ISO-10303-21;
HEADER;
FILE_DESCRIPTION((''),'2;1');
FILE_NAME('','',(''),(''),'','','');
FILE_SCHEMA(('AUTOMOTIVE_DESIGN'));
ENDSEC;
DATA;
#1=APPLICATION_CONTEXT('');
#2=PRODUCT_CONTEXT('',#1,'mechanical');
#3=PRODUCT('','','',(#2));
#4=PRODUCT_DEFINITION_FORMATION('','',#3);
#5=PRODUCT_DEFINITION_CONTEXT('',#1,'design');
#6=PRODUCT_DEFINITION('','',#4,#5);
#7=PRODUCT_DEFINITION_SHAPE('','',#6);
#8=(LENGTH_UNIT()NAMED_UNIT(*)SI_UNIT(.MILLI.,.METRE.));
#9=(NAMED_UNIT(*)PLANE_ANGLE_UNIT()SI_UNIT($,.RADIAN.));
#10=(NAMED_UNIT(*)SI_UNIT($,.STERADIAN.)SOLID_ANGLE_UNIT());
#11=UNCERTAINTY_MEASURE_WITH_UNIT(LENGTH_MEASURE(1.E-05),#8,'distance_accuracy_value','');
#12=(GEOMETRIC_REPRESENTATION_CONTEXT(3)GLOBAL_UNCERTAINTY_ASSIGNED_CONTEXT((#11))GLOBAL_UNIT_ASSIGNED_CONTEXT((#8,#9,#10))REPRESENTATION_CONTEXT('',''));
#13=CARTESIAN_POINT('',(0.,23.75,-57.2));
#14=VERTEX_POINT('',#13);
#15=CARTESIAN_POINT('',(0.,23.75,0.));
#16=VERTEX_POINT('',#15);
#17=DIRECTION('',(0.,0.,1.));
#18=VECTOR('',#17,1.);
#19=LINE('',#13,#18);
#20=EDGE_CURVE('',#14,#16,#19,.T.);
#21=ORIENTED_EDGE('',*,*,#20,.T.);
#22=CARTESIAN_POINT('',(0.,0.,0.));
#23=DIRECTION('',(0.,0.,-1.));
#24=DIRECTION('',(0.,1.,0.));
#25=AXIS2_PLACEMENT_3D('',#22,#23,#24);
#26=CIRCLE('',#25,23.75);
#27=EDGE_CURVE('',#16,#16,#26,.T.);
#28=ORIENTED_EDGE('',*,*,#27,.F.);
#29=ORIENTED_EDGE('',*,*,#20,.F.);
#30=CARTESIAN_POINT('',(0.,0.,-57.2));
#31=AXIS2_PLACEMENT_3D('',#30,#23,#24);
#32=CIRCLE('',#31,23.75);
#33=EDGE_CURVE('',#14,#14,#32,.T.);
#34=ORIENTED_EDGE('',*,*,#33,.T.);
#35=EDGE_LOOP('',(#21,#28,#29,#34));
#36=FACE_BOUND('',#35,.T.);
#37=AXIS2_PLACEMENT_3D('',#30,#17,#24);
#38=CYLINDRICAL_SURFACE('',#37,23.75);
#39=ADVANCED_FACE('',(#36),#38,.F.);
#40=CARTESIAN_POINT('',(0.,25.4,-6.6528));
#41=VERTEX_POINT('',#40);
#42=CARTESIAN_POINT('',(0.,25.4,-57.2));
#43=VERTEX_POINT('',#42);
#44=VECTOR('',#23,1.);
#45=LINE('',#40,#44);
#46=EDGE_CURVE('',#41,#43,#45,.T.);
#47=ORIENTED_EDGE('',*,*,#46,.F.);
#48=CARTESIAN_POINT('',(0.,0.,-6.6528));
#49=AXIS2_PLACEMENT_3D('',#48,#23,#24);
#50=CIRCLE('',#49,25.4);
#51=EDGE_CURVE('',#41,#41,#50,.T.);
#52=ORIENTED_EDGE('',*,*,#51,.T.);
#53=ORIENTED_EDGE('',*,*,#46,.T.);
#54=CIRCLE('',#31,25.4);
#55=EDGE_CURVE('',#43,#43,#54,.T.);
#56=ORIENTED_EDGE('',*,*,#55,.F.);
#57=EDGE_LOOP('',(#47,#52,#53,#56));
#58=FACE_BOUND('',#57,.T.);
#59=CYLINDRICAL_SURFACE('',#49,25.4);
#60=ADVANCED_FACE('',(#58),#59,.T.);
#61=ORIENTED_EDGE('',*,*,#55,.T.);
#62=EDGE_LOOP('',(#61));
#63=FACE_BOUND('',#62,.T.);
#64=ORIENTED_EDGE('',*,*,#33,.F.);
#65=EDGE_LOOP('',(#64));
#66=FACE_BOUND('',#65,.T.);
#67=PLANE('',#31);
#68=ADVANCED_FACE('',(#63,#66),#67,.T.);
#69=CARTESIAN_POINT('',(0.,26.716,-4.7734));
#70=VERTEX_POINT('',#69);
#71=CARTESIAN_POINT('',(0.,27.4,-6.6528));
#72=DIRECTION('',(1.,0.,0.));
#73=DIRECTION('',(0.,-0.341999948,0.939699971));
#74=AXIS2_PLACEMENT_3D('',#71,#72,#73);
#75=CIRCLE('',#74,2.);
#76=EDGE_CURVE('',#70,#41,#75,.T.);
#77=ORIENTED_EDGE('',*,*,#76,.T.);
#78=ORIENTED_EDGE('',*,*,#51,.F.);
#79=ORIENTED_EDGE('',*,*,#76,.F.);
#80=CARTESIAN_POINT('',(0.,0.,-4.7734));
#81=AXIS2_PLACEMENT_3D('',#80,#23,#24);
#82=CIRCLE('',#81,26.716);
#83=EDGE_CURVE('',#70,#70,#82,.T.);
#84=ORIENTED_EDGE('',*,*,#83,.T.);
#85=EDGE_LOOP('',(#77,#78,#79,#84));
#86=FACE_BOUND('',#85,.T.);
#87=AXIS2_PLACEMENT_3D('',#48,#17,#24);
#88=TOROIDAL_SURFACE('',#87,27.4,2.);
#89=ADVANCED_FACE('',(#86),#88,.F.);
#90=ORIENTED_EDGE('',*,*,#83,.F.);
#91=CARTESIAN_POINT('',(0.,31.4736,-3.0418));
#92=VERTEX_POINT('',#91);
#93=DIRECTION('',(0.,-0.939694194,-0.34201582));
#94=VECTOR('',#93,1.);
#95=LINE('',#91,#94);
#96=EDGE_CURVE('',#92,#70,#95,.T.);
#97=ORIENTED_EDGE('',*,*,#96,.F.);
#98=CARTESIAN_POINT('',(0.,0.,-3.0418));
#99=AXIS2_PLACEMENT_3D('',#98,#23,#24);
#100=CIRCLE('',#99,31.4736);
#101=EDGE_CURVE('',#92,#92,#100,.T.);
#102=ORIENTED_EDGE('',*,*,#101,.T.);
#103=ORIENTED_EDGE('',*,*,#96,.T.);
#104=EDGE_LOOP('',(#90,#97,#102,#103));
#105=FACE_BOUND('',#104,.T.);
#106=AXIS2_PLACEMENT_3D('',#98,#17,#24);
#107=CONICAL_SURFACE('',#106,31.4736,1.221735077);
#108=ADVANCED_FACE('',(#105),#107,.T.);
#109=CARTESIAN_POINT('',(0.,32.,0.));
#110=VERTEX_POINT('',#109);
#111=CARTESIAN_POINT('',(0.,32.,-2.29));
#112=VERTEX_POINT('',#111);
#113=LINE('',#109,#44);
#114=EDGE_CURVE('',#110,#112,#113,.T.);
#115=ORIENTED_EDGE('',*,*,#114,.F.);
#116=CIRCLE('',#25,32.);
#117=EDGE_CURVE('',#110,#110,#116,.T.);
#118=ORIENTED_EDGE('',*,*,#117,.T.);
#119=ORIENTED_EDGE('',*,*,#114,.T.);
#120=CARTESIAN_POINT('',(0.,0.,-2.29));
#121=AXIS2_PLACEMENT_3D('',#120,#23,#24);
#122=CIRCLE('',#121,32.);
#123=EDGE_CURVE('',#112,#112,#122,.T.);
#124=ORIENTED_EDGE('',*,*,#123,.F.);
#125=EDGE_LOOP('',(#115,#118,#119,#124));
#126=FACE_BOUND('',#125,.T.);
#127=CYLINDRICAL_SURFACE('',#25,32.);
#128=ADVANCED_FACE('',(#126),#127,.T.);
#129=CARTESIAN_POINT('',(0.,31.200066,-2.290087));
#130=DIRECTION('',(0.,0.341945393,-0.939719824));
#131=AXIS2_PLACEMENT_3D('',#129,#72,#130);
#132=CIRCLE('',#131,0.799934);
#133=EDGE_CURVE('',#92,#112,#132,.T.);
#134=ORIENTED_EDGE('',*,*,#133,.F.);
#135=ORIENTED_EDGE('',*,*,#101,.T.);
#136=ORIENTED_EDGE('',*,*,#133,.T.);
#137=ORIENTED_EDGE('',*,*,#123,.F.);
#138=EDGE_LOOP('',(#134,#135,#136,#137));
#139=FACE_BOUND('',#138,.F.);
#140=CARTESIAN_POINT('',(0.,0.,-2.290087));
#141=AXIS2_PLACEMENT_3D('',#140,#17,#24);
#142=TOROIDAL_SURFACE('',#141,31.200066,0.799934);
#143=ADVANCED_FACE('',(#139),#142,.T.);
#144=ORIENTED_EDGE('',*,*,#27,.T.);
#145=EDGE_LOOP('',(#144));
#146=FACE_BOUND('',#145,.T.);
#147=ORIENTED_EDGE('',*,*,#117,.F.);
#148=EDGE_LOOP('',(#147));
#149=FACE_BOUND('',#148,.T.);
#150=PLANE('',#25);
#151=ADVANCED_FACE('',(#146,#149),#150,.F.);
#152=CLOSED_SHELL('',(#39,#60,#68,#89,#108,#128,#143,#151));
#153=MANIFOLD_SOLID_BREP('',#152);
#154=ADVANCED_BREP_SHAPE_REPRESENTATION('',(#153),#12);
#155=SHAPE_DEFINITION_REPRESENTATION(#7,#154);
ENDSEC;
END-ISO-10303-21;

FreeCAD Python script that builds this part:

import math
import FreeCAD as App
import Part
import Sketcher
from FreeCAD import Vector
Q = App.Units.Quantity

doc = App.newDocument("Part")
params = doc.addObject("Spreadsheet::Sheet", "Params")
for row, (alias, value) in enumerate([
    ("sketch1_radius", "2 mm"),
    ("sketch1_radius2", "0.8 mm"),
    ("sketch1_height", "57.2 mm"),
    ("sketch1_width", "1.65 mm"),
    ("sketch1_height2", "2.29 mm"),
    ("revolution_angle", "360 deg"),
], start=1):
    params.set(f"A{row}", alias)
    params.set(f"B{row}", "=" + value)
    params.setAlias(f"B{row}", alias)

body = doc.addObject("PartDesign::Body", "Body")

sketch1 = body.newObject("Sketcher::SketchObject", "Sketch")
sketch1.AttachmentSupport = (doc.getObject("YZ_Plane"), [""])
sketch1.MapMode = "FlatFace"
sketch1.addGeometry([
    Part.LineSegment(Vector(23.8, 0, 0), Vector(23.8, -57.2, 0)),
    Part.LineSegment(Vector(23.8, -57.2, 0), Vector(25.4, -57.2, 0)),
    Part.LineSegment(Vector(25.4, -57.2, 0), Vector(25.4, -6.7, 0)),
    Part.ArcOfCircle(Part.Circle(Vector(27.4, -6.7, 0), Vector(0, 0, 1), 2), math.radians(110), math.radians(180)),
    Part.LineSegment(Vector(26.7, -4.8, 0), Vector(31.5, -3, 0)),
    Part.ArcOfCircle(Part.Circle(Vector(31.2, -2.3, 0), Vector(0, 0, 1), 0.8), math.radians(-70), math.radians(0)),
    Part.LineSegment(Vector(32, -2.3, 0), Vector(32, 0, 0)),
    Part.LineSegment(Vector(32, 0, 0), Vector(23.8, 0, 0)),
], False)
sketch1.addConstraint([
    Sketcher.Constraint("Coincident", 0, 2, 1, 1),
    Sketcher.Constraint("Coincident", 1, 2, 2, 1),
    Sketcher.Constraint("Tangent", 2, 2, 3, 2),
    Sketcher.Constraint("Tangent", 3, 1, 4, 1),
    Sketcher.Constraint("Tangent", 4, 2, 5, 1),
    Sketcher.Constraint("Tangent", 5, 2, 6, 1),
    Sketcher.Constraint("Coincident", 6, 2, 7, 1),
    Sketcher.Constraint("Coincident", 7, 2, 0, 1),
    Sketcher.Constraint("Vertical", 0),
    Sketcher.Constraint("Horizontal", 1),
    Sketcher.Constraint("Vertical", 2),
    Sketcher.Constraint("Vertical", 6),
    Sketcher.Constraint("Horizontal", 7),
    Sketcher.Constraint("PointOnObject", 6, 2, -1),
    Sketcher.Constraint("Radius", 3, Q("2 mm")),
    Sketcher.Constraint("Radius", 5, Q("0.8 mm")),
    Sketcher.Constraint("Angle", 4, Q("19.9997 deg")),
    Sketcher.Constraint("DistanceY", 0, 2, 0, 1, Q("57.2 mm")),
    Sketcher.Constraint("DistanceX", 1, 1, 1, 2, Q("1.65 mm")),
    Sketcher.Constraint("DistanceY", 6, 1, 6, 2, Q("2.29 mm")),
    Sketcher.Constraint("DistanceX", -1, 1, 5, 2, Q("32 mm")),
    Sketcher.Constraint("DistanceX", 7, 2, 7, 1, Q("8.25 mm")),
])
sketch1.setExpression("Constraints[14]", "Params.sketch1_radius")
sketch1.setExpression("Constraints[15]", "Params.sketch1_radius2")
sketch1.setExpression("Constraints[17]", "Params.sketch1_height")
sketch1.setExpression("Constraints[18]", "Params.sketch1_width")
sketch1.setExpression("Constraints[19]", "Params.sketch1_height2")
revolution = body.newObject("PartDesign::Revolution", "Revolution")
revolution.Profile = sketch1
revolution.ReferenceAxis = (sketch1, ["V_Axis"])
revolution.setExpression("Angle", "Params.revolution_angle")

doc.recompute()
